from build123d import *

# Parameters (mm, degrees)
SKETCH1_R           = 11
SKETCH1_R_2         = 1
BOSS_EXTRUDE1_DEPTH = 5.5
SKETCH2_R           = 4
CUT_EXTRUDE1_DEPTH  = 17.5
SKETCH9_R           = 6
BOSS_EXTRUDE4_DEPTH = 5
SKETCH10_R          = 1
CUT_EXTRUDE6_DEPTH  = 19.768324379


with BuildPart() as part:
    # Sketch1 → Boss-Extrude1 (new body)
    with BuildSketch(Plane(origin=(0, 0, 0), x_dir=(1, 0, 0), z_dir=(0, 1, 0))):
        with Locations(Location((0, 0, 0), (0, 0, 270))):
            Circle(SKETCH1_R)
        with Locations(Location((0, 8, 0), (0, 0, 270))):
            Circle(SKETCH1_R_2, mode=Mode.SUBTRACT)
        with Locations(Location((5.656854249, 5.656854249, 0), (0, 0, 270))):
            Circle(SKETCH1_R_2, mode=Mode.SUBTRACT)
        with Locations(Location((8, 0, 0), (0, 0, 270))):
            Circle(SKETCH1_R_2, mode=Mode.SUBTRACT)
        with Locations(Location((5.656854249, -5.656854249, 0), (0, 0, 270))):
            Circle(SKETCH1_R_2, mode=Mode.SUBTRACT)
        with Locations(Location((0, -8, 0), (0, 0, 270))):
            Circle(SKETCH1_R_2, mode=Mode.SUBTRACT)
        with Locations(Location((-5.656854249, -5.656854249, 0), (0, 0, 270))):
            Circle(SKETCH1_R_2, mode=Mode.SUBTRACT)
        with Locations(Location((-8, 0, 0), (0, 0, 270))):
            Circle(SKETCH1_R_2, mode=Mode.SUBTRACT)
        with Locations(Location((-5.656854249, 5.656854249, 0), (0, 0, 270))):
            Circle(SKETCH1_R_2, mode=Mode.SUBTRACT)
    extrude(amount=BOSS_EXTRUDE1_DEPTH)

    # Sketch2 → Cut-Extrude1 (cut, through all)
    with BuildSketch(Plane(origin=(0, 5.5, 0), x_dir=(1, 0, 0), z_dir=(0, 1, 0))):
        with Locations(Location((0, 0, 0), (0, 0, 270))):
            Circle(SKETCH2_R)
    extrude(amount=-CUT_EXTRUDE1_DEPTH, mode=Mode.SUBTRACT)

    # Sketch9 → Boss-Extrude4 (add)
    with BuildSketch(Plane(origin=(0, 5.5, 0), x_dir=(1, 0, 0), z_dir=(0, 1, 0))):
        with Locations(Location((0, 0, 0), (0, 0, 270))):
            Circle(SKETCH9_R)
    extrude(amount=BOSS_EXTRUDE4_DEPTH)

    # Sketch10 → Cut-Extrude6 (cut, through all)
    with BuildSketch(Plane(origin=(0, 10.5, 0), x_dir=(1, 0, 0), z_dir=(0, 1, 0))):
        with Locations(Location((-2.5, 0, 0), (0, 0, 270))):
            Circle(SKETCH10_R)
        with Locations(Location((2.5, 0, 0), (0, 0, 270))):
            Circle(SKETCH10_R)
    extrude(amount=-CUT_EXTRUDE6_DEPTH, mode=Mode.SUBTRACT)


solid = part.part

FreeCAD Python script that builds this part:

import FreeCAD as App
import Part
import Sketcher
from FreeCAD import Vector

doc = App.newDocument("Part")
body = doc.addObject("PartDesign::Body", "Body")

sketch1 = body.newObject("Sketcher::SketchObject", "Sketch")
sketch1.AttachmentSupport = (doc.getObject("XZ_Plane"), [""])
sketch1.MapMode = "FlatFace"
sketch1.addGeometry([
    Part.Circle(Vector(0, 0, 0), Vector(0, 0, 1), 11),
    Part.Circle(Vector(-5.7, -5.7, 0), Vector(0, 0, 1), 1),
    Part.Circle(Vector(0, -8, 0), Vector(0, 0, 1), 1),
    Part.Circle(Vector(-8, 0, 0), Vector(0, 0, 1), 1),
    Part.Circle(Vector(-5.7, 5.7, 0), Vector(0, 0, 1), 1),
    Part.Circle(Vector(5.7, -5.7, 0), Vector(0, 0, 1), 1),
    Part.Circle(Vector(8, 0, 0), Vector(0, 0, 1), 1),
    Part.Circle(Vector(0, 8, 0), Vector(0, 0, 1), 1),
    Part.Circle(Vector(5.7, 5.7, 0), Vector(0, 0, 1), 1),
], False)
sketch1.addConstraint([
    Sketcher.Constraint("Coincident", 0, 3, -1, 1),
    Sketcher.Constraint("Equal", 1, 2),
    Sketcher.Constraint("Equal", 2, 3),
    Sketcher.Constraint("Equal", 3, 4),
    Sketcher.Constraint("Equal", 4, 5),
    Sketcher.Constraint("Equal", 5, 6),
    Sketcher.Constraint("Equal", 6, 7),
    Sketcher.Constraint("Equal", 7, 8),
    Sketcher.Constraint("Symmetric", 4, 3, 5, 3, -1, 1),
    Sketcher.Constraint("Symmetric", 3, 3, 6, 3, -1, 1),
    Sketcher.Constraint("Symmetric", 2, 3, 7, 3, -1, 1),
    Sketcher.Constraint("Symmetric", 1, 3, 8, 3, -1, 1),
    Sketcher.Constraint("Symmetric", 1, 3, 5, 3, -2),
    Sketcher.Constraint("PointOnObject", 2, 3, -2),
    Sketcher.Constraint("PointOnObject", 3, 3, -1),
    Sketcher.Constraint("Diameter", 0, 22.0),
    Sketcher.Constraint("Diameter", 1, 2.0),
    Sketcher.Constraint("DistanceY", 2, 3, -1, 1, 8.0),
    Sketcher.Constraint("DistanceX", 3, 3, -1, 1, 8.0),
    Sketcher.Constraint("DistanceY", 1, 3, 4, 3, 11.313708),
    Sketcher.Constraint("DistanceX", 1, 3, 5, 3, 11.313708),
])
pad1 = body.newObject("PartDesign::Pad", "Pad")
pad1.Profile = sketch1
pad1.Length = 5.5
pad1.Reversed = True

sketch2 = body.newObject("Sketcher::SketchObject", "Sketch001")
sketch2.AttachmentSupport = (doc.getObject("XZ_Plane"), [""])
sketch2.MapMode = "FlatFace"
sketch2.AttachmentOffset = App.Placement(Vector(0, 0, -5.5), App.Rotation())
sketch2.addGeometry(Part.Circle(Vector(0, 0, 0), Vector(0, 0, 1), 4), False)
sketch2.addConstraint([
    Sketcher.Constraint("Coincident", 0, 3, -1, 1),
    Sketcher.Constraint("Diameter", 0, 8.0),
])
pocket1 = body.newObject("PartDesign::Pocket", "Pocket")
pocket1.Profile = sketch2
pocket1.Type = "ThroughAll"
pocket1.Reversed = True

sketch3 = body.newObject("Sketcher::SketchObject", "Sketch002")
sketch3.AttachmentSupport = (doc.getObject("XZ_Plane"), [""])
sketch3.MapMode = "FlatFace"
sketch3.AttachmentOffset = App.Placement(Vector(0, 0, -5.5), App.Rotation())
sketch3.addGeometry(Part.Circle(Vector(0, 0, 0), Vector(0, 0, 1), 6), False)
sketch3.addConstraint([
    Sketcher.Constraint("Coincident", 0, 3, -1, 1),
    Sketcher.Constraint("Diameter", 0, 12.0),
])
pad2 = body.newObject("PartDesign::Pad", "Pad001")
pad2.Profile = sketch3
pad2.Length = 5
pad2.Reversed = True

sketch4 = body.newObject("Sketcher::SketchObject", "Sketch003")
sketch4.AttachmentSupport = (doc.getObject("XZ_Plane"), [""])
sketch4.MapMode = "FlatFace"
sketch4.AttachmentOffset = App.Placement(Vector(0, 0, -10.5), App.Rotation())
sketch4.addGeometry([
    Part.Circle(Vector(-2.5, 0, 0), Vector(0, 0, 1), 1),
    Part.Circle(Vector(2.5, 0, 0), Vector(0, 0, 1), 1),
], False)
sketch4.addConstraint([
    Sketcher.Constraint("Equal", 0, 1),
    Sketcher.Constraint("Symmetric", 0, 3, 1, 3, -1, 1),
    Sketcher.Constraint("PointOnObject", 0, 3, -1),
    Sketcher.Constraint("Diameter", 0, 2.0),
    Sketcher.Constraint("DistanceX", 0, 3, 1, 3, 5.0),
])
pocket2 = body.newObject("PartDesign::Pocket", "Pocket001")
pocket2.Profile = sketch4
pocket2.Type = "ThroughAll"
pocket2.Reversed = True

doc.recompute()
